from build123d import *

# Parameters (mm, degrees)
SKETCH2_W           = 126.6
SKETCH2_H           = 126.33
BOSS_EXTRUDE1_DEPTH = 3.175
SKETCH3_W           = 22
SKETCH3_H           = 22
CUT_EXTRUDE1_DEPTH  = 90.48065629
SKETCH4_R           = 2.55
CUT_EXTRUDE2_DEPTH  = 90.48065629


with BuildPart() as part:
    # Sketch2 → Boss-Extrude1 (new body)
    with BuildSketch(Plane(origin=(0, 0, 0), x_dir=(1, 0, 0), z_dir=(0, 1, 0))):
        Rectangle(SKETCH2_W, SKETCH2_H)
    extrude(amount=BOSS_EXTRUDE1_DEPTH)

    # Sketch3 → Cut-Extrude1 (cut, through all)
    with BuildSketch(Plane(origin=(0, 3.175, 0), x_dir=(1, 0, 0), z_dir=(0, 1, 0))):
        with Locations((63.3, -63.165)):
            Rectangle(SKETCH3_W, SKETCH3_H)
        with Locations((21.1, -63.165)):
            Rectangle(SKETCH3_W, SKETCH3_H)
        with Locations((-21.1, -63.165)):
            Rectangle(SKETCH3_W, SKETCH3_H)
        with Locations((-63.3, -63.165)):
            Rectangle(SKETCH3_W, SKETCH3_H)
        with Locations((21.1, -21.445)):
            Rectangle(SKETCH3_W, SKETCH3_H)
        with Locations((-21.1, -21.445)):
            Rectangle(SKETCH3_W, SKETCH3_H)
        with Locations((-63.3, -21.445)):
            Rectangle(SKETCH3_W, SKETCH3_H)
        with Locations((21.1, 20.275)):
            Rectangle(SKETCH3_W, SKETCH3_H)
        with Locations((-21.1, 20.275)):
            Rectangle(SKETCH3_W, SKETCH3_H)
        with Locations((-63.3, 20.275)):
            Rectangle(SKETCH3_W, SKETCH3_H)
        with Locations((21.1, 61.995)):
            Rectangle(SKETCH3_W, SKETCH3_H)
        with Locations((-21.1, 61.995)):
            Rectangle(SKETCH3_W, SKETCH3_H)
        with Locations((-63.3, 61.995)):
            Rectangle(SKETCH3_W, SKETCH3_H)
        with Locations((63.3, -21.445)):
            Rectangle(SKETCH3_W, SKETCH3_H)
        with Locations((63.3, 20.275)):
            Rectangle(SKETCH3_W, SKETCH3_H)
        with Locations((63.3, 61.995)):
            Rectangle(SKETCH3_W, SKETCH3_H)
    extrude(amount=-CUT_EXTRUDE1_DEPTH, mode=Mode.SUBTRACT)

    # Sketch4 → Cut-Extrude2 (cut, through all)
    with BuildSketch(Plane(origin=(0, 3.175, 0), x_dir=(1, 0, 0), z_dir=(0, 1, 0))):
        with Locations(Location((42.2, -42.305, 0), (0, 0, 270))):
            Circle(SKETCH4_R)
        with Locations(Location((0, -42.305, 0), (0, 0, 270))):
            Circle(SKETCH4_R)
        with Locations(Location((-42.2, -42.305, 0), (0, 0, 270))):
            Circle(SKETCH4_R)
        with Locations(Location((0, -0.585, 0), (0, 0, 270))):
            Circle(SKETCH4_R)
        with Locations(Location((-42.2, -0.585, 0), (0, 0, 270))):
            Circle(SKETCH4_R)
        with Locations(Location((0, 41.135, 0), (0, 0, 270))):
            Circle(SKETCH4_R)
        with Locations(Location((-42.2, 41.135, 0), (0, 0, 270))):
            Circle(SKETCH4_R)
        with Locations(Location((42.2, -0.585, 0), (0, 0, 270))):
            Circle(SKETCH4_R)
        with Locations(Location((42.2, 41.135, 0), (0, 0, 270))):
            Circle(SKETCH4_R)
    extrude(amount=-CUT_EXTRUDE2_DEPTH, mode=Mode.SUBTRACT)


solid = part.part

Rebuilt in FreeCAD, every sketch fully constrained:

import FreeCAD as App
import Part
import Sketcher
from FreeCAD import Vector

doc = App.newDocument("Part")
body = doc.addObject("PartDesign::Body", "Body")

# Sketch on XZ plane
sketch1 = body.newObject("Sketcher::SketchObject", "Sketch")
sketch1.AttachmentSupport = (doc.getObject("XZ_Plane"), [""])
sketch1.MapMode = "FlatFace"
sketch1.addGeometry([
    Part.LineSegment(Vector(-63.3, -63.165, 0), Vector(-63.3, 63.165, 0)),
    Part.LineSegment(Vector(-63.3, 63.165, 0), Vector(63.3, 63.165, 0)),
    Part.LineSegment(Vector(63.3, 63.165, 0), Vector(63.3, -63.165, 0)),
    Part.LineSegment(Vector(63.3, -63.165, 0), Vector(-63.3, -63.165, 0)),
], False)
sketch1.addConstraint([
    Sketcher.Constraint("Coincident", 0, 2, 1, 1),
    Sketcher.Constraint("Coincident", 1, 2, 2, 1),
    Sketcher.Constraint("Coincident", 2, 2, 3, 1),
    Sketcher.Constraint("Coincident", 3, 2, 0, 1),
    Sketcher.Constraint("Vertical", 0),
    Sketcher.Constraint("Horizontal", 1),
    Sketcher.Constraint("Vertical", 2),
    Sketcher.Constraint("Horizontal", 3),
    Sketcher.Constraint("Symmetric", 0, 2, 2, 2, -1, 1),
    Sketcher.Constraint("DistanceX", 1, 1, 1, 2, 126.6),
    Sketcher.Constraint("DistanceY", 0, 1, 0, 2, 126.33),
])
pad1 = body.newObject("PartDesign::Pad", "Pad")
pad1.Profile = sketch1
pad1.Length = 3.175
pad1.Reversed = True

# Sketch on XZ plane
sketch2 = body.newObject("Sketcher::SketchObject", "Sketch001")
sketch2.AttachmentSupport = (doc.getObject("XZ_Plane"), [""])
sketch2.MapMode = "FlatFace"
sketch2.AttachmentOffset = App.Placement(Vector(0, 0, -3.175), App.Rotation())
sketch2.addGeometry([
    Part.LineSegment(Vector(52.3, 52.165, 0), Vector(52.3, 74.165, 0)),  # 0
    Part.LineSegment(Vector(52.3, 74.165, 0), Vector(74.3, 74.165, 0)),  # 1
    Part.LineSegment(Vector(74.3, 74.165, 0), Vector(74.3, 52.165, 0)),  # 2
    Part.LineSegment(Vector(74.3, 52.165, 0), Vector(52.3, 52.165, 0)),  # 3
    Part.LineSegment(Vector(10.1, 52.165, 0), Vector(10.1, 74.165, 0)),  # 4
    Part.LineSegment(Vector(10.1, 74.165, 0), Vector(32.1, 74.165, 0)),  # 5
    Part.LineSegment(Vector(32.1, 74.165, 0), Vector(32.1, 52.165, 0)),  # 6
    Part.LineSegment(Vector(32.1, 52.165, 0), Vector(10.1, 52.165, 0)),  # 7
    Part.LineSegment(Vector(-32.1, 52.165, 0), Vector(-32.1, 74.165, 0)),  # 8
    Part.LineSegment(Vector(-32.1, 74.165, 0), Vector(-10.1, 74.165, 0)),  # 9
    Part.LineSegment(Vector(-10.1, 74.165, 0), Vector(-10.1, 52.165, 0)),  # 10
    Part.LineSegment(Vector(-10.1, 52.165, 0), Vector(-32.1, 52.165, 0)),  # 11
    Part.LineSegment(Vector(-74.3, 52.165, 0), Vector(-74.3, 74.165, 0)),  # 12
    Part.LineSegment(Vector(-74.3, 74.165, 0), Vector(-52.3, 74.165, 0)),  # 13
    Part.LineSegment(Vector(-52.3, 74.165, 0), Vector(-52.3, 52.165, 0)),  # 14
    Part.LineSegment(Vector(-52.3, 52.165, 0), Vector(-74.3, 52.165, 0)),  # 15
    Part.LineSegment(Vector(10.1, 10.445, 0), Vector(10.1, 32.445, 0)),  # 16
    Part.LineSegment(Vector(10.1, 32.445, 0), Vector(32.1, 32.445, 0)),  # 17
    Part.LineSegment(Vector(32.1, 32.445, 0), Vector(32.1, 10.445, 0)),  # 18
    Part.LineSegment(Vector(32.1, 10.445, 0), Vector(10.1, 10.445, 0)),  # 19
    Part.LineSegment(Vector(-32.1, 10.445, 0), Vector(-32.1, 32.445, 0)),  # 20
    Part.LineSegment(Vector(-32.1, 32.445, 0), Vector(-10.1, 32.445, 0)),  # 21
    Part.LineSegment(Vector(-10.1, 32.445, 0), Vector(-10.1, 10.445, 0)),  # 22
    Part.LineSegment(Vector(-10.1, 10.445, 0), Vector(-32.1, 10.445, 0)),  # 23
    Part.LineSegment(Vector(-74.3, 10.445, 0), Vector(-74.3, 32.445, 0)),  # 24
    Part.LineSegment(Vector(-74.3, 32.445, 0), Vector(-52.3, 32.445, 0)),  # 25
    Part.LineSegment(Vector(-52.3, 32.445, 0), Vector(-52.3, 10.445, 0)),  # 26
    Part.LineSegment(Vector(-52.3, 10.445, 0), Vector(-74.3, 10.445, 0)),  # 27
    Part.LineSegment(Vector(10.1, -31.275, 0), Vector(10.1, -9.275, 0)),  # 28
    Part.LineSegment(Vector(10.1, -9.275, 0), Vector(32.1, -9.275, 0)),  # 29
    Part.LineSegment(Vector(32.1, -9.275, 0), Vector(32.1, -31.275, 0)),  # 30
    Part.LineSegment(Vector(32.1, -31.275, 0), Vector(10.1, -31.275, 0)),  # 31
    Part.LineSegment(Vector(-32.1, -31.275, 0), Vector(-32.1, -9.275, 0)),  # 32
    Part.LineSegment(Vector(-32.1, -9.275, 0), Vector(-10.1, -9.275, 0)),  # 33
    Part.LineSegment(Vector(-10.1, -9.275, 0), Vector(-10.1, -31.275, 0)),  # 34
    Part.LineSegment(Vector(-10.1, -31.275, 0), Vector(-32.1, -31.275, 0)),  # 35
    Part.LineSegment(Vector(-74.3, -31.275, 0), Vector(-74.3, -9.275, 0)),  # 36
    Part.LineSegment(Vector(-74.3, -9.275, 0), Vector(-52.3, -9.275, 0)),  # 37
    Part.LineSegment(Vector(-52.3, -9.275, 0), Vector(-52.3, -31.275, 0)),  # 38
    Part.LineSegment(Vector(-52.3, -31.275, 0), Vector(-74.3, -31.275, 0)),  # 39
    Part.LineSegment(Vector(10.1, -72.995, 0), Vector(10.1, -50.995, 0)),  # 40
    Part.LineSegment(Vector(10.1, -50.995, 0), Vector(32.1, -50.995, 0)),  # 41
    Part.LineSegment(Vector(32.1, -50.995, 0), Vector(32.1, -72.995, 0)),  # 42
    Part.LineSegment(Vector(32.1, -72.995, 0), Vector(10.1, -72.995, 0)),  # 43
    Part.LineSegment(Vector(-32.1, -72.995, 0), Vector(-32.1, -50.995, 0)),  # 44
    Part.LineSegment(Vector(-32.1, -50.995, 0), Vector(-10.1, -50.995, 0)),  # 45
    Part.LineSegment(Vector(-10.1, -50.995, 0), Vector(-10.1, -72.995, 0)),  # 46
    Part.LineSegment(Vector(-10.1, -72.995, 0), Vector(-32.1, -72.995, 0)),  # 47
    Part.LineSegment(Vector(-74.3, -72.995, 0), Vector(-74.3, -50.995, 0)),  # 48
    Part.LineSegment(Vector(-74.3, -50.995, 0), Vector(-52.3, -50.995, 0)),  # 49
    Part.LineSegment(Vector(-52.3, -50.995, 0), Vector(-52.3, -72.995, 0)),  # 50
    Part.LineSegment(Vector(-52.3, -72.995, 0), Vector(-74.3, -72.995, 0)),  # 51
    Part.LineSegment(Vector(52.3, 10.445, 0), Vector(52.3, 32.445, 0)),  # 52
    Part.LineSegment(Vector(52.3, 32.445, 0), Vector(74.3, 32.445, 0)),  # 53
    Part.LineSegment(Vector(74.3, 32.445, 0), Vector(74.3, 10.445, 0)),  # 54
    Part.LineSegment(Vector(74.3, 10.445, 0), Vector(52.3, 10.445, 0)),  # 55
    Part.LineSegment(Vector(52.3, -31.275, 0), Vector(52.3, -9.275, 0)),  # 56
    Part.LineSegment(Vector(52.3, -9.275, 0), Vector(74.3, -9.275, 0)),  # 57
    Part.LineSegment(Vector(74.3, -9.275, 0), Vector(74.3, -31.275, 0)),  # 58
    Part.LineSegment(Vector(74.3, -31.275, 0), Vector(52.3, -31.275, 0)),  # 59
    Part.LineSegment(Vector(52.3, -72.995, 0), Vector(52.3, -50.995, 0)),  # 60
    Part.LineSegment(Vector(52.3, -50.995, 0), Vector(74.3, -50.995, 0)),  # 61
    Part.LineSegment(Vector(74.3, -50.995, 0), Vector(74.3, -72.995, 0)),  # 62
    Part.LineSegment(Vector(74.3, -72.995, 0), Vector(52.3, -72.995, 0)),  # 63
], False)
sketch2.addConstraint([
    Sketcher.Constraint("Coincident", 0, 2, 1, 1),
    Sketcher.Constraint("Coincident", 1, 2, 2, 1),
    Sketcher.Constraint("Coincident", 2, 2, 3, 1),
    Sketcher.Constraint("Coincident", 3, 2, 0, 1),
    Sketcher.Constraint("Coincident", 4, 2, 5, 1),
    Sketcher.Constraint("Coincident", 5, 2, 6, 1),
    Sketcher.Constraint("Coincident", 6, 2, 7, 1),
    Sketcher.Constraint("Coincident", 7, 2, 4, 1),
    Sketcher.Constraint("Coincident", 8, 2, 9, 1),
    Sketcher.Constraint("Coincident", 9, 2, 10, 1),
    Sketcher.Constraint("Coincident", 10, 2, 11, 1),
    Sketcher.Constraint("Coincident", 11, 2, 8, 1),
    Sketcher.Constraint("Coincident", 12, 2, 13, 1),
    Sketcher.Constraint("Coincident", 13, 2, 14, 1),
    Sketcher.Constraint("Coincident", 14, 2, 15, 1),
    Sketcher.Constraint("Coincident", 15, 2, 12, 1),
    Sketcher.Constraint("Coincident", 16, 2, 17, 1),
    Sketcher.Constraint("Coincident", 17, 2, 18, 1),
    Sketcher.Constraint("Coincident", 18, 2, 19, 1),
    Sketcher.Constraint("Coincident", 19, 2, 16, 1),
    Sketcher.Constraint("Coincident", 20, 2, 21, 1),
    Sketcher.Constraint("Coincident", 21, 2, 22, 1),
    Sketcher.Constraint("Coincident", 22, 2, 23, 1),
    Sketcher.Constraint("Coincident", 23, 2, 20, 1),
    Sketcher.Constraint("Coincident", 24, 2, 25, 1),
    Sketcher.Constraint("Coincident", 25, 2, 26, 1),
    Sketcher.Constraint("Coincident", 26, 2, 27, 1),
    Sketcher.Constraint("Coincident", 27, 2, 24, 1),
    Sketcher.Constraint("Coincident", 28, 2, 29, 1),
    Sketcher.Constraint("Coincident", 29, 2, 30, 1),
    Sketcher.Constraint("Coincident", 30, 2, 31, 1),
    Sketcher.Constraint("Coincident", 31, 2, 28, 1),
    Sketcher.Constraint("Coincident", 32, 2, 33, 1),
    Sketcher.Constraint("Coincident", 33, 2, 34, 1),
    Sketcher.Constraint("Coincident", 34, 2, 35, 1),
    Sketcher.Constraint("Coincident", 35, 2, 32, 1),
    Sketcher.Constraint("Coincident", 36, 2, 37, 1),
    Sketcher.Constraint("Coincident", 37, 2, 38, 1),
    Sketcher.Constraint("Coincident", 38, 2, 39, 1),
    Sketcher.Constraint("Coincident", 39, 2, 36, 1),
    Sketcher.Constraint("Coincident", 40, 2, 41, 1),
    Sketcher.Constraint("Coincident", 41, 2, 42, 1),
    Sketcher.Constraint("Coincident", 42, 2, 43, 1),
    Sketcher.Constraint("Coincident", 43, 2, 40, 1),
    Sketcher.Constraint("Coincident", 44, 2, 45, 1),
    Sketcher.Constraint("Coincident", 45, 2, 46, 1),
    Sketcher.Constraint("Coincident", 46, 2, 47, 1),
    Sketcher.Constraint("Coincident", 47, 2, 44, 1),
    Sketcher.Constraint("Coincident", 48, 2, 49, 1),
    Sketcher.Constraint("Coincident", 49, 2, 50, 1),
    Sketcher.Constraint("Coincident", 50, 2, 51, 1),
    Sketcher.Constraint("Coincident", 51, 2, 48, 1),
    Sketcher.Constraint("Coincident", 52, 2, 53, 1),
    Sketcher.Constraint("Coincident", 53, 2, 54, 1),
    Sketcher.Constraint("Coincident", 54, 2, 55, 1),
    Sketcher.Constraint("Coincident", 55, 2, 52, 1),
    Sketcher.Constraint("Coincident", 56, 2, 57, 1),
    Sketcher.Constraint("Coincident", 57, 2, 58, 1),
    Sketcher.Constraint("Coincident", 58, 2, 59, 1),
    Sketcher.Constraint("Coincident", 59, 2, 56, 1),
    Sketcher.Constraint("Coincident", 60, 2, 61, 1),
    Sketcher.Constraint("Coincident", 61, 2, 62, 1),
    Sketcher.Constraint("Coincident", 62, 2, 63, 1),
    Sketcher.Constraint("Coincident", 63, 2, 60, 1),
    Sketcher.Constraint("Vertical", 0),
    Sketcher.Constraint("Horizontal", 1),
    Sketcher.Constraint("Vertical", 2),
    Sketcher.Constraint("Horizontal", 3),
    Sketcher.Constraint("Vertical", 4),
    Sketcher.Constraint("Horizontal", 5),
    Sketcher.Constraint("Vertical", 6),
    Sketcher.Constraint("Horizontal", 7),
    Sketcher.Constraint("Vertical", 8),
    Sketcher.Constraint("Horizontal", 9),
    Sketcher.Constraint("Vertical", 10),
    Sketcher.Constraint("Horizontal", 11),
    Sketcher.Constraint("Vertical", 12),
    Sketcher.Constraint("Horizontal", 13),
    Sketcher.Constraint("Vertical", 14),
    Sketcher.Constraint("Horizontal", 15),
    Sketcher.Constraint("Vertical", 16),
    Sketcher.Constraint("Horizontal", 17),
    Sketcher.Constraint("Vertical", 18),
    Sketcher.Constraint("Horizontal", 19),
    Sketcher.Constraint("Vertical", 20),
    Sketcher.Constraint("Horizontal", 21),
    Sketcher.Constraint("Vertical", 22),
    Sketcher.Constraint("Horizontal", 23),
    Sketcher.Constraint("Vertical", 24),
    Sketcher.Constraint("Horizontal", 25),
    Sketcher.Constraint("Vertical", 26),
    Sketcher.Constraint("Horizontal", 27),
    Sketcher.Constraint("Vertical", 28),
    Sketcher.Constraint("Horizontal", 29),
    Sketcher.Constraint("Vertical", 30),
    Sketcher.Constraint("Horizontal", 31),
    Sketcher.Constraint("Vertical", 32),
    Sketcher.Constraint("Horizontal", 33),
    Sketcher.Constraint("Vertical", 34),
    Sketcher.Constraint("Horizontal", 35),
    Sketcher.Constraint("Vertical", 36),
    Sketcher.Constraint("Horizontal", 37),
    Sketcher.Constraint("Vertical", 38),
    Sketcher.Constraint("Horizontal", 39),
    Sketcher.Constraint("Vertical", 40),
    Sketcher.Constraint("Horizontal", 41),
    Sketcher.Constraint("Vertical", 42),
    Sketcher.Constraint("Horizontal", 43),
    Sketcher.Constraint("Vertical", 44),
    Sketcher.Constraint("Horizontal", 45),
    Sketcher.Constraint("Vertical", 46),
    Sketcher.Constraint("Horizontal", 47),
    Sketcher.Constraint("Vertical", 48),
    Sketcher.Constraint("Horizontal", 49),
    Sketcher.Constraint("Vertical", 50),
    Sketcher.Constraint("Horizontal", 51),
    Sketcher.Constraint("Vertical", 52),
    Sketcher.Constraint("Horizontal", 53),
    Sketcher.Constraint("Vertical", 54),
    Sketcher.Constraint("Horizontal", 55),
    Sketcher.Constraint("Vertical", 56),
    Sketcher.Constraint("Horizontal", 57),
    Sketcher.Constraint("Vertical", 58),
    Sketcher.Constraint("Horizontal", 59),
    Sketcher.Constraint("Vertical", 60),
    Sketcher.Constraint("Horizontal", 61),
    Sketcher.Constraint("Vertical", 62),
    Sketcher.Constraint("Horizontal", 63),
    Sketcher.Constraint("Symmetric", 5, 2, 8, 2, -2),
    Sketcher.Constraint("Symmetric", 7, 2, 10, 2, -2),
    Sketcher.Constraint("Symmetric", 1, 2, 12, 2, -2),
    Sketcher.Constraint("Symmetric", 3, 2, 14, 2, -2),
    Sketcher.Constraint("Symmetric", 17, 2, 20, 2, -2),
    Sketcher.Constraint("Symmetric", 19, 2, 22, 2, -2),
    Sketcher.Constraint("Symmetric", 29, 2, 32, 2, -2),
    Sketcher.Constraint("Symmetric", 31, 2, 34, 2, -2),
    Sketcher.Constraint("Symmetric", 41, 2, 44, 2, -2),
    Sketcher.Constraint("Symmetric", 43, 2, 46, 2, -2),
    Sketcher.Constraint("Symmetric", 25, 2, 52, 2, -2),
    Sketcher.Constraint("Symmetric", 27, 2, 54, 2, -2),
    Sketcher.Constraint("Symmetric", 37, 2, 56, 2, -2),
    Sketcher.Constraint("Symmetric", 39, 2, 58, 2, -2),
    Sketcher.Constraint("Symmetric", 49, 2, 60, 2, -2),
    Sketcher.Constraint("Symmetric", 51, 2, 62, 2, -2),
    Sketcher.Constraint("Horizontal", 1, 2, 4, 2),
    Sketcher.Constraint("Horizontal", 3, 2, 6, 2),
    Sketcher.Constraint("Horizontal", 21, 2, 24, 2),
    Sketcher.Constraint("Horizontal", 23, 2, 26, 2),
    Sketcher.Constraint("Horizontal", 33, 2, 36, 2),
    Sketcher.Constraint("Horizontal", 35, 2, 38, 2),
    Sketcher.Constraint("Horizontal", 45, 2, 48, 2),
    Sketcher.Constraint("Horizontal", 47, 2, 50, 2),
    Sketcher.Constraint("Vertical", 7, 2, 16, 2),
    Sketcher.Constraint("Vertical", 6, 2, 17, 2),
    Sketcher.Constraint("Vertical", 15, 2, 24, 2),
    Sketcher.Constraint("Vertical", 14, 2, 25, 2),
    Sketcher.Constraint("Vertical", 19, 2, 28, 2),
    Sketcher.Constraint("Vertical", 18, 2, 29, 2),
    Sketcher.Constraint("Vertical", 27, 2, 36, 2),
    Sketcher.Constraint("Vertical", 26, 2, 37, 2),
    Sketcher.Constraint("Vertical", 31, 2, 40, 2),
    Sketcher.Constraint("Vertical", 30, 2, 41, 2),
    Sketcher.Constraint("Vertical", 39, 2, 48, 2),
    Sketcher.Constraint("Vertical", 38, 2, 49, 2),
    Sketcher.Constraint("Equal", 3, 5),
    Sketcher.Constraint("Equal", 63, 0),
    Sketcher.Constraint("Equal", 14, 16),
    Sketcher.Constraint("Equal", 26, 28),
    Sketcher.Constraint("Equal", 38, 40),
    Sketcher.Constraint("DistanceX", 1, 1, 1, 2, 22.0),
    Sketcher.Constraint("DistanceX", -1, 1, 0, 2, 52.3),
    Sketcher.Constraint("DistanceX", -1, 1, 4, 2, 10.1),
    Sketcher.Constraint("DistanceY", -1, 1, 0, 2, 74.165),
    Sketcher.Constraint("DistanceY", -1, 1, 16, 2, 32.445),
    Sketcher.Constraint("DistanceY", 28, 2, -1, 1, 9.275),
    Sketcher.Constraint("DistanceY", 40, 2, -1, 1, 50.995),
])
pocket1 = body.newObject("PartDesign::Pocket", "Pocket")
pocket1.Profile = sketch2
pocket1.Type = "ThroughAll"
pocket1.Reversed = True

# Sketch on XZ plane
sketch3 = body.newObject("Sketcher::SketchObject", "Sketch002")
sketch3.AttachmentSupport = (doc.getObject("XZ_Plane"), [""])
sketch3.MapMode = "FlatFace"
sketch3.AttachmentOffset = App.Placement(Vector(0, 0, -3.175), App.Rotation())
sketch3.addGeometry([
    Part.Circle(Vector(42.2, 42.305, 0), Vector(0, 0, 1), 2.55),  # 0
    Part.Circle(Vector(0, 42.305, 0), Vector(0, 0, 1), 2.55),  # 1
    Part.Circle(Vector(-42.2, 42.305, 0), Vector(0, 0, 1), 2.55),  # 2
    Part.Circle(Vector(0, 0.585, 0), Vector(0, 0, 1), 2.55),  # 3
    Part.Circle(Vector(-42.2, 0.585, 0), Vector(0, 0, 1), 2.55),  # 4
    Part.Circle(Vector(0, -41.135, 0), Vector(0, 0, 1), 2.55),  # 5
    Part.Circle(Vector(-42.2, -41.135, 0), Vector(0, 0, 1), 2.55),  # 6
    Part.Circle(Vector(42.2, 0.585, 0), Vector(0, 0, 1), 2.55),  # 7
    Part.Circle(Vector(42.2, -41.135, 0), Vector(0, 0, 1), 2.55),  # 8
], False)
sketch3.addConstraint([
    Sketcher.Constraint("Equal", 0, 1),
    Sketcher.Constraint("Equal", 1, 2),
    Sketcher.Constraint("Equal", 2, 3),
    Sketcher.Constraint("Equal", 3, 4),
    Sketcher.Constraint("Equal", 4, 5),
    Sketcher.Constraint("Equal", 5, 6),
    Sketcher.Constraint("Equal", 6, 7),
    Sketcher.Constraint("Equal", 7, 8),
    Sketcher.Constraint("Symmetric", 0, 3, 2, 3, -2),
    Sketcher.Constraint("Symmetric", 4, 3, 7, 3, -2),
    Sketcher.Constraint("Symmetric", 6, 3, 8, 3, -2),
    Sketcher.Constraint("PointOnObject", 1, 3, -2),
    Sketcher.Constraint("PointOnObject", 3, 3, -2),
    Sketcher.Constraint("PointOnObject", 5, 3, -2),
    Sketcher.Constraint("Horizontal", 0, 3, 1, 3),
    Sketcher.Constraint("Horizontal", 3, 3, 4, 3),
    Sketcher.Constraint("Horizontal", 5, 3, 6, 3),
    Sketcher.Constraint("Vertical", 2, 3, 4, 3),
    Sketcher.Constraint("Vertical", 4, 3, 6, 3),
    Sketcher.Constraint("Diameter", 0, 5.1),
    Sketcher.Constraint("DistanceX", -1, 1, 0, 3, 42.2),
    Sketcher.Constraint("DistanceY", 3, 3, 1, 3, 41.72),
    Sketcher.Constraint("DistanceY", 5, 3, 3, 3, 41.72),
    Sketcher.Constraint("DistanceY", -1, 1, 0, 3, 42.305),
])
pocket2 = body.newObject("PartDesign::Pocket", "Pocket001")
pocket2.Profile = sketch3
pocket2.Type = "ThroughAll"
pocket2.Reversed = True

doc.recompute()
